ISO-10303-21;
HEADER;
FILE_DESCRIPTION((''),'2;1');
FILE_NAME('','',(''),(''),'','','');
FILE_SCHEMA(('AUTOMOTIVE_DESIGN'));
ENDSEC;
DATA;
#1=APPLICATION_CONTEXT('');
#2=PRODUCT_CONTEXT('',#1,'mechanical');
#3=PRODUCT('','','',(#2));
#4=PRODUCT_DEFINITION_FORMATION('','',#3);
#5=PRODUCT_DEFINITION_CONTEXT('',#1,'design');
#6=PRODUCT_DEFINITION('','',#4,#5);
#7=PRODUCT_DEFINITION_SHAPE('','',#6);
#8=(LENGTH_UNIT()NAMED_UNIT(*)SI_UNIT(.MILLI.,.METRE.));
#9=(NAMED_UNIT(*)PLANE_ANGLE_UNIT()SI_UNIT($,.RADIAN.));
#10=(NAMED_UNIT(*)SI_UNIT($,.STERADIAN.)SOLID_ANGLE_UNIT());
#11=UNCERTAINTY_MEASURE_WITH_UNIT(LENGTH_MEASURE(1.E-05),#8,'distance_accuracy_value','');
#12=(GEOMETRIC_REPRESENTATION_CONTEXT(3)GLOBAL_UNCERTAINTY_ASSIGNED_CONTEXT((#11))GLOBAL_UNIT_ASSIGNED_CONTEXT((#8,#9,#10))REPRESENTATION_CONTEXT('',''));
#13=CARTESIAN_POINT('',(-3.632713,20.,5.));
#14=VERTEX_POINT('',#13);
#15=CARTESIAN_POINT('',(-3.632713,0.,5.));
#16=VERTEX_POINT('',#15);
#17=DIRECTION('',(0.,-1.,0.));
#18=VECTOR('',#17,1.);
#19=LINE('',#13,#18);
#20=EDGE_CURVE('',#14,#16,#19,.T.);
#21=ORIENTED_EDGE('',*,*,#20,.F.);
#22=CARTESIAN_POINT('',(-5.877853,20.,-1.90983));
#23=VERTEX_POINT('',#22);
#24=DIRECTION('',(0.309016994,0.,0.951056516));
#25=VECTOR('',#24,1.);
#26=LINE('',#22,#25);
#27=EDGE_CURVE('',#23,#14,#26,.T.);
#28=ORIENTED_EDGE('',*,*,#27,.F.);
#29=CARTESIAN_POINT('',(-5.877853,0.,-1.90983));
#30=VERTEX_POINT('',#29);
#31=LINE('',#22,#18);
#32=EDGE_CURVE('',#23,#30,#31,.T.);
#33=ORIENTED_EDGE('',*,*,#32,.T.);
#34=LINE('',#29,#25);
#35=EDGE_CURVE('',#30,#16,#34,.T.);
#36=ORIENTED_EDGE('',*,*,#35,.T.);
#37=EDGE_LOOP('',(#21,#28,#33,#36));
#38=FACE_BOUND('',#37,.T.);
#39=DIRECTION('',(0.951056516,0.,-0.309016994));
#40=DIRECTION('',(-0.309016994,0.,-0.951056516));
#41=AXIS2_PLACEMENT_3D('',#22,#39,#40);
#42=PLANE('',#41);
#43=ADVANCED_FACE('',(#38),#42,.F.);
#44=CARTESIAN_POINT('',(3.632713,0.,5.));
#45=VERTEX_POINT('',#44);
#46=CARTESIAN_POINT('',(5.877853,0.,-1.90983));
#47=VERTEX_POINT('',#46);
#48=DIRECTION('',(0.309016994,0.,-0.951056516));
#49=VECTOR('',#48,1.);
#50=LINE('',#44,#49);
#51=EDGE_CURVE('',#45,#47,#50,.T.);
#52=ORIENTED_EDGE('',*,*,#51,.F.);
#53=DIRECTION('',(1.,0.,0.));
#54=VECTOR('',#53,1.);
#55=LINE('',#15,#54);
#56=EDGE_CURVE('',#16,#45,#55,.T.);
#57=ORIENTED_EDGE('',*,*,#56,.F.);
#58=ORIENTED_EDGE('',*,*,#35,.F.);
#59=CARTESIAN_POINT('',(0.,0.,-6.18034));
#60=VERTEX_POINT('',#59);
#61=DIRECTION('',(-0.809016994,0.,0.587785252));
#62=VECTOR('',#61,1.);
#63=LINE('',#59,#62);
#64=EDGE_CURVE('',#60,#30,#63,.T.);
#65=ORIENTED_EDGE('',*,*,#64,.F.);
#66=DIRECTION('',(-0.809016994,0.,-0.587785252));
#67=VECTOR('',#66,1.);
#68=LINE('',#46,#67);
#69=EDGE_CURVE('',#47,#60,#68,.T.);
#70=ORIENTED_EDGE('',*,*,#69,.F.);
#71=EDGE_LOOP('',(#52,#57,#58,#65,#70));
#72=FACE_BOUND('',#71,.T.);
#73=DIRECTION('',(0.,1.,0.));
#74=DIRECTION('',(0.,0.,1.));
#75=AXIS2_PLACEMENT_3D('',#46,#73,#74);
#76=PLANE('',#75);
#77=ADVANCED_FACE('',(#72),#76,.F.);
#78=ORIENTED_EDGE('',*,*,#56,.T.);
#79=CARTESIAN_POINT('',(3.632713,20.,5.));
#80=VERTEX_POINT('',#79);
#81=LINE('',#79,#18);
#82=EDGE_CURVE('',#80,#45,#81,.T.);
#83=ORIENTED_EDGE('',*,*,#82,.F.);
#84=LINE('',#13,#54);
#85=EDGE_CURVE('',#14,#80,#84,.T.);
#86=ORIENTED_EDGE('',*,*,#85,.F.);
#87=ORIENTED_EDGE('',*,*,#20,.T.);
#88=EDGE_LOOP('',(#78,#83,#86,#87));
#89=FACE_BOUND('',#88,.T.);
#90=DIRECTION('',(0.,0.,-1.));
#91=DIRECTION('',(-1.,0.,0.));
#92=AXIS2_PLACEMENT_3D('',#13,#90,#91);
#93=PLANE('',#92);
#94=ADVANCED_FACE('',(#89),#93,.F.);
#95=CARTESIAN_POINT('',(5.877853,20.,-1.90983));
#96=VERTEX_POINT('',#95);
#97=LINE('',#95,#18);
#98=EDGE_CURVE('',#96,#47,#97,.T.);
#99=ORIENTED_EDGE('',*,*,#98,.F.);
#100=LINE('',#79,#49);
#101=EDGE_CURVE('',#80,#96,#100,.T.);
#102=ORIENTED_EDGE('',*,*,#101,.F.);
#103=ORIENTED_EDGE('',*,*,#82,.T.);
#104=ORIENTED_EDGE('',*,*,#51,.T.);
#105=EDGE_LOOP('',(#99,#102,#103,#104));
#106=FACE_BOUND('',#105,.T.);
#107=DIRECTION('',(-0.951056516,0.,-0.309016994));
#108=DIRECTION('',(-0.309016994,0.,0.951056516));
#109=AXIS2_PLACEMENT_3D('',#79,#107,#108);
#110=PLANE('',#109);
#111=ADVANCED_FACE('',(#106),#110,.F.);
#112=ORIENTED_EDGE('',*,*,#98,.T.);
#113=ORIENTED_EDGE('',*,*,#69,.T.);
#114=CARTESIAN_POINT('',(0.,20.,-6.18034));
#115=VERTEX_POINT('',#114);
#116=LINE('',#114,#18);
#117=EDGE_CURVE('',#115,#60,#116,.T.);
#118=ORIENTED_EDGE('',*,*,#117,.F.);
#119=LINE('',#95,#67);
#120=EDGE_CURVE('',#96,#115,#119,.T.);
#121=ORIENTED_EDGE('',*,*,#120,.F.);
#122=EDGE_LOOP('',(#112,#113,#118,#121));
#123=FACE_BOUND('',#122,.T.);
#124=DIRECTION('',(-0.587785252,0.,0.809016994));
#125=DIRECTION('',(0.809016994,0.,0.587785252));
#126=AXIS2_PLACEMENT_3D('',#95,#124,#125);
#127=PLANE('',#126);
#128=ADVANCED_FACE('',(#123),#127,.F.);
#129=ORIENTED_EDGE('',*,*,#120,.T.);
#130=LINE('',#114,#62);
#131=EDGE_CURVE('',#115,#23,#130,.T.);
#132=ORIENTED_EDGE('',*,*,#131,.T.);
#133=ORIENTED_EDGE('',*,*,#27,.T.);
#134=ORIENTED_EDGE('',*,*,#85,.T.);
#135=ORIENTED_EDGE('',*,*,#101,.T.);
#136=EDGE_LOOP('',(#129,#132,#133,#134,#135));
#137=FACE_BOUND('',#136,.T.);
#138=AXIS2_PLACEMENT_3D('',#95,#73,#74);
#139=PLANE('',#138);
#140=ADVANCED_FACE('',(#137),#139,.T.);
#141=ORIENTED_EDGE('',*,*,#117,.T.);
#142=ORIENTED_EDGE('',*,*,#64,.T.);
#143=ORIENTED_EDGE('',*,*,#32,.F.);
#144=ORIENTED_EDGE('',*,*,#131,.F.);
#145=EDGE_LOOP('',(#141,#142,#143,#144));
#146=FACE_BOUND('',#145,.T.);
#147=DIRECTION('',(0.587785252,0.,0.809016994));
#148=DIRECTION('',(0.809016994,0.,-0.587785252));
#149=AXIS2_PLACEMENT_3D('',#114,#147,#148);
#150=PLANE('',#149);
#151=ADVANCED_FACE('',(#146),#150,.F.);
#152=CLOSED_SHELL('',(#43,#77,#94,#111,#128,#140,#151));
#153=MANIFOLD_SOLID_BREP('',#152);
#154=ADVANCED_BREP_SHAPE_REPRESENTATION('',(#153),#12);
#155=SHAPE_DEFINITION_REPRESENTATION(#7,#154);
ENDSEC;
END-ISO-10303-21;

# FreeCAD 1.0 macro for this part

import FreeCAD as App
import Part
import Sketcher
Q = App.Units.Quantity

doc = App.newDocument("Part")
params = doc.addObject("Spreadsheet::Sheet", "Params")
for row, (alias, value) in enumerate([
    ("pad1_length", "20 mm"),
], start=1):
    params.set(f"A{row}", alias)
    params.set(f"B{row}", "=" + value)
    params.setAlias(f"B{row}", alias)

body = doc.addObject("PartDesign::Body", "Body")

sketch1 = body.newObject("Sketcher::SketchObject", "Sketch")
sketch1.AttachmentSupport = (doc.getObject("XZ_Plane"), [""])
sketch1.MapMode = "FlatFace"
sketch1.addGeometry([
    Part.LineSegment(App.Vector(6, -2, 0), App.Vector(0, -6, 0)),
    Part.LineSegment(App.Vector(0, -6, 0), App.Vector(-6, -2, 0)),
    Part.LineSegment(App.Vector(-6, -2, 0), App.Vector(-4, 5, 0)),
    Part.LineSegment(App.Vector(-4, 5, 0), App.Vector(4, 5, 0)),
    Part.LineSegment(App.Vector(4, 5, 0), App.Vector(6, -2, 0)),
], False)
sketch1.addConstraint([
    Sketcher.Constraint("Coincident", 0, 2, 1, 1),
    Sketcher.Constraint("Coincident", 1, 2, 2, 1),
    Sketcher.Constraint("Coincident", 2, 2, 3, 1),
    Sketcher.Constraint("Coincident", 3, 2, 4, 1),
    Sketcher.Constraint("Coincident", 4, 2, 0, 1),
    Sketcher.Constraint("Horizontal", 3),
    Sketcher.Constraint("Symmetric", 1, 2, 4, 2, -2),
    Sketcher.Constraint("PointOnObject", 0, 2, -2),
    Sketcher.Constraint("Equal", 1, 2),
    Sketcher.Constraint("Equal", 2, 4),
    Sketcher.Constraint("Angle", 0, Q("-144 deg")),
    Sketcher.Constraint("Angle", 2, Q("72 deg")),
    Sketcher.Constraint("DistanceY", -1, 1, 2, 2, 5.0),
    Sketcher.Constraint("DistanceX", 3, 1, 3, 2, 7.265425),
])
pad1 = body.newObject("PartDesign::Pad", "Pad")
pad1.Profile = sketch1
pad1.setExpression("Length", "Params.pad1_length")
pad1.Reversed = True

doc.recompute()
